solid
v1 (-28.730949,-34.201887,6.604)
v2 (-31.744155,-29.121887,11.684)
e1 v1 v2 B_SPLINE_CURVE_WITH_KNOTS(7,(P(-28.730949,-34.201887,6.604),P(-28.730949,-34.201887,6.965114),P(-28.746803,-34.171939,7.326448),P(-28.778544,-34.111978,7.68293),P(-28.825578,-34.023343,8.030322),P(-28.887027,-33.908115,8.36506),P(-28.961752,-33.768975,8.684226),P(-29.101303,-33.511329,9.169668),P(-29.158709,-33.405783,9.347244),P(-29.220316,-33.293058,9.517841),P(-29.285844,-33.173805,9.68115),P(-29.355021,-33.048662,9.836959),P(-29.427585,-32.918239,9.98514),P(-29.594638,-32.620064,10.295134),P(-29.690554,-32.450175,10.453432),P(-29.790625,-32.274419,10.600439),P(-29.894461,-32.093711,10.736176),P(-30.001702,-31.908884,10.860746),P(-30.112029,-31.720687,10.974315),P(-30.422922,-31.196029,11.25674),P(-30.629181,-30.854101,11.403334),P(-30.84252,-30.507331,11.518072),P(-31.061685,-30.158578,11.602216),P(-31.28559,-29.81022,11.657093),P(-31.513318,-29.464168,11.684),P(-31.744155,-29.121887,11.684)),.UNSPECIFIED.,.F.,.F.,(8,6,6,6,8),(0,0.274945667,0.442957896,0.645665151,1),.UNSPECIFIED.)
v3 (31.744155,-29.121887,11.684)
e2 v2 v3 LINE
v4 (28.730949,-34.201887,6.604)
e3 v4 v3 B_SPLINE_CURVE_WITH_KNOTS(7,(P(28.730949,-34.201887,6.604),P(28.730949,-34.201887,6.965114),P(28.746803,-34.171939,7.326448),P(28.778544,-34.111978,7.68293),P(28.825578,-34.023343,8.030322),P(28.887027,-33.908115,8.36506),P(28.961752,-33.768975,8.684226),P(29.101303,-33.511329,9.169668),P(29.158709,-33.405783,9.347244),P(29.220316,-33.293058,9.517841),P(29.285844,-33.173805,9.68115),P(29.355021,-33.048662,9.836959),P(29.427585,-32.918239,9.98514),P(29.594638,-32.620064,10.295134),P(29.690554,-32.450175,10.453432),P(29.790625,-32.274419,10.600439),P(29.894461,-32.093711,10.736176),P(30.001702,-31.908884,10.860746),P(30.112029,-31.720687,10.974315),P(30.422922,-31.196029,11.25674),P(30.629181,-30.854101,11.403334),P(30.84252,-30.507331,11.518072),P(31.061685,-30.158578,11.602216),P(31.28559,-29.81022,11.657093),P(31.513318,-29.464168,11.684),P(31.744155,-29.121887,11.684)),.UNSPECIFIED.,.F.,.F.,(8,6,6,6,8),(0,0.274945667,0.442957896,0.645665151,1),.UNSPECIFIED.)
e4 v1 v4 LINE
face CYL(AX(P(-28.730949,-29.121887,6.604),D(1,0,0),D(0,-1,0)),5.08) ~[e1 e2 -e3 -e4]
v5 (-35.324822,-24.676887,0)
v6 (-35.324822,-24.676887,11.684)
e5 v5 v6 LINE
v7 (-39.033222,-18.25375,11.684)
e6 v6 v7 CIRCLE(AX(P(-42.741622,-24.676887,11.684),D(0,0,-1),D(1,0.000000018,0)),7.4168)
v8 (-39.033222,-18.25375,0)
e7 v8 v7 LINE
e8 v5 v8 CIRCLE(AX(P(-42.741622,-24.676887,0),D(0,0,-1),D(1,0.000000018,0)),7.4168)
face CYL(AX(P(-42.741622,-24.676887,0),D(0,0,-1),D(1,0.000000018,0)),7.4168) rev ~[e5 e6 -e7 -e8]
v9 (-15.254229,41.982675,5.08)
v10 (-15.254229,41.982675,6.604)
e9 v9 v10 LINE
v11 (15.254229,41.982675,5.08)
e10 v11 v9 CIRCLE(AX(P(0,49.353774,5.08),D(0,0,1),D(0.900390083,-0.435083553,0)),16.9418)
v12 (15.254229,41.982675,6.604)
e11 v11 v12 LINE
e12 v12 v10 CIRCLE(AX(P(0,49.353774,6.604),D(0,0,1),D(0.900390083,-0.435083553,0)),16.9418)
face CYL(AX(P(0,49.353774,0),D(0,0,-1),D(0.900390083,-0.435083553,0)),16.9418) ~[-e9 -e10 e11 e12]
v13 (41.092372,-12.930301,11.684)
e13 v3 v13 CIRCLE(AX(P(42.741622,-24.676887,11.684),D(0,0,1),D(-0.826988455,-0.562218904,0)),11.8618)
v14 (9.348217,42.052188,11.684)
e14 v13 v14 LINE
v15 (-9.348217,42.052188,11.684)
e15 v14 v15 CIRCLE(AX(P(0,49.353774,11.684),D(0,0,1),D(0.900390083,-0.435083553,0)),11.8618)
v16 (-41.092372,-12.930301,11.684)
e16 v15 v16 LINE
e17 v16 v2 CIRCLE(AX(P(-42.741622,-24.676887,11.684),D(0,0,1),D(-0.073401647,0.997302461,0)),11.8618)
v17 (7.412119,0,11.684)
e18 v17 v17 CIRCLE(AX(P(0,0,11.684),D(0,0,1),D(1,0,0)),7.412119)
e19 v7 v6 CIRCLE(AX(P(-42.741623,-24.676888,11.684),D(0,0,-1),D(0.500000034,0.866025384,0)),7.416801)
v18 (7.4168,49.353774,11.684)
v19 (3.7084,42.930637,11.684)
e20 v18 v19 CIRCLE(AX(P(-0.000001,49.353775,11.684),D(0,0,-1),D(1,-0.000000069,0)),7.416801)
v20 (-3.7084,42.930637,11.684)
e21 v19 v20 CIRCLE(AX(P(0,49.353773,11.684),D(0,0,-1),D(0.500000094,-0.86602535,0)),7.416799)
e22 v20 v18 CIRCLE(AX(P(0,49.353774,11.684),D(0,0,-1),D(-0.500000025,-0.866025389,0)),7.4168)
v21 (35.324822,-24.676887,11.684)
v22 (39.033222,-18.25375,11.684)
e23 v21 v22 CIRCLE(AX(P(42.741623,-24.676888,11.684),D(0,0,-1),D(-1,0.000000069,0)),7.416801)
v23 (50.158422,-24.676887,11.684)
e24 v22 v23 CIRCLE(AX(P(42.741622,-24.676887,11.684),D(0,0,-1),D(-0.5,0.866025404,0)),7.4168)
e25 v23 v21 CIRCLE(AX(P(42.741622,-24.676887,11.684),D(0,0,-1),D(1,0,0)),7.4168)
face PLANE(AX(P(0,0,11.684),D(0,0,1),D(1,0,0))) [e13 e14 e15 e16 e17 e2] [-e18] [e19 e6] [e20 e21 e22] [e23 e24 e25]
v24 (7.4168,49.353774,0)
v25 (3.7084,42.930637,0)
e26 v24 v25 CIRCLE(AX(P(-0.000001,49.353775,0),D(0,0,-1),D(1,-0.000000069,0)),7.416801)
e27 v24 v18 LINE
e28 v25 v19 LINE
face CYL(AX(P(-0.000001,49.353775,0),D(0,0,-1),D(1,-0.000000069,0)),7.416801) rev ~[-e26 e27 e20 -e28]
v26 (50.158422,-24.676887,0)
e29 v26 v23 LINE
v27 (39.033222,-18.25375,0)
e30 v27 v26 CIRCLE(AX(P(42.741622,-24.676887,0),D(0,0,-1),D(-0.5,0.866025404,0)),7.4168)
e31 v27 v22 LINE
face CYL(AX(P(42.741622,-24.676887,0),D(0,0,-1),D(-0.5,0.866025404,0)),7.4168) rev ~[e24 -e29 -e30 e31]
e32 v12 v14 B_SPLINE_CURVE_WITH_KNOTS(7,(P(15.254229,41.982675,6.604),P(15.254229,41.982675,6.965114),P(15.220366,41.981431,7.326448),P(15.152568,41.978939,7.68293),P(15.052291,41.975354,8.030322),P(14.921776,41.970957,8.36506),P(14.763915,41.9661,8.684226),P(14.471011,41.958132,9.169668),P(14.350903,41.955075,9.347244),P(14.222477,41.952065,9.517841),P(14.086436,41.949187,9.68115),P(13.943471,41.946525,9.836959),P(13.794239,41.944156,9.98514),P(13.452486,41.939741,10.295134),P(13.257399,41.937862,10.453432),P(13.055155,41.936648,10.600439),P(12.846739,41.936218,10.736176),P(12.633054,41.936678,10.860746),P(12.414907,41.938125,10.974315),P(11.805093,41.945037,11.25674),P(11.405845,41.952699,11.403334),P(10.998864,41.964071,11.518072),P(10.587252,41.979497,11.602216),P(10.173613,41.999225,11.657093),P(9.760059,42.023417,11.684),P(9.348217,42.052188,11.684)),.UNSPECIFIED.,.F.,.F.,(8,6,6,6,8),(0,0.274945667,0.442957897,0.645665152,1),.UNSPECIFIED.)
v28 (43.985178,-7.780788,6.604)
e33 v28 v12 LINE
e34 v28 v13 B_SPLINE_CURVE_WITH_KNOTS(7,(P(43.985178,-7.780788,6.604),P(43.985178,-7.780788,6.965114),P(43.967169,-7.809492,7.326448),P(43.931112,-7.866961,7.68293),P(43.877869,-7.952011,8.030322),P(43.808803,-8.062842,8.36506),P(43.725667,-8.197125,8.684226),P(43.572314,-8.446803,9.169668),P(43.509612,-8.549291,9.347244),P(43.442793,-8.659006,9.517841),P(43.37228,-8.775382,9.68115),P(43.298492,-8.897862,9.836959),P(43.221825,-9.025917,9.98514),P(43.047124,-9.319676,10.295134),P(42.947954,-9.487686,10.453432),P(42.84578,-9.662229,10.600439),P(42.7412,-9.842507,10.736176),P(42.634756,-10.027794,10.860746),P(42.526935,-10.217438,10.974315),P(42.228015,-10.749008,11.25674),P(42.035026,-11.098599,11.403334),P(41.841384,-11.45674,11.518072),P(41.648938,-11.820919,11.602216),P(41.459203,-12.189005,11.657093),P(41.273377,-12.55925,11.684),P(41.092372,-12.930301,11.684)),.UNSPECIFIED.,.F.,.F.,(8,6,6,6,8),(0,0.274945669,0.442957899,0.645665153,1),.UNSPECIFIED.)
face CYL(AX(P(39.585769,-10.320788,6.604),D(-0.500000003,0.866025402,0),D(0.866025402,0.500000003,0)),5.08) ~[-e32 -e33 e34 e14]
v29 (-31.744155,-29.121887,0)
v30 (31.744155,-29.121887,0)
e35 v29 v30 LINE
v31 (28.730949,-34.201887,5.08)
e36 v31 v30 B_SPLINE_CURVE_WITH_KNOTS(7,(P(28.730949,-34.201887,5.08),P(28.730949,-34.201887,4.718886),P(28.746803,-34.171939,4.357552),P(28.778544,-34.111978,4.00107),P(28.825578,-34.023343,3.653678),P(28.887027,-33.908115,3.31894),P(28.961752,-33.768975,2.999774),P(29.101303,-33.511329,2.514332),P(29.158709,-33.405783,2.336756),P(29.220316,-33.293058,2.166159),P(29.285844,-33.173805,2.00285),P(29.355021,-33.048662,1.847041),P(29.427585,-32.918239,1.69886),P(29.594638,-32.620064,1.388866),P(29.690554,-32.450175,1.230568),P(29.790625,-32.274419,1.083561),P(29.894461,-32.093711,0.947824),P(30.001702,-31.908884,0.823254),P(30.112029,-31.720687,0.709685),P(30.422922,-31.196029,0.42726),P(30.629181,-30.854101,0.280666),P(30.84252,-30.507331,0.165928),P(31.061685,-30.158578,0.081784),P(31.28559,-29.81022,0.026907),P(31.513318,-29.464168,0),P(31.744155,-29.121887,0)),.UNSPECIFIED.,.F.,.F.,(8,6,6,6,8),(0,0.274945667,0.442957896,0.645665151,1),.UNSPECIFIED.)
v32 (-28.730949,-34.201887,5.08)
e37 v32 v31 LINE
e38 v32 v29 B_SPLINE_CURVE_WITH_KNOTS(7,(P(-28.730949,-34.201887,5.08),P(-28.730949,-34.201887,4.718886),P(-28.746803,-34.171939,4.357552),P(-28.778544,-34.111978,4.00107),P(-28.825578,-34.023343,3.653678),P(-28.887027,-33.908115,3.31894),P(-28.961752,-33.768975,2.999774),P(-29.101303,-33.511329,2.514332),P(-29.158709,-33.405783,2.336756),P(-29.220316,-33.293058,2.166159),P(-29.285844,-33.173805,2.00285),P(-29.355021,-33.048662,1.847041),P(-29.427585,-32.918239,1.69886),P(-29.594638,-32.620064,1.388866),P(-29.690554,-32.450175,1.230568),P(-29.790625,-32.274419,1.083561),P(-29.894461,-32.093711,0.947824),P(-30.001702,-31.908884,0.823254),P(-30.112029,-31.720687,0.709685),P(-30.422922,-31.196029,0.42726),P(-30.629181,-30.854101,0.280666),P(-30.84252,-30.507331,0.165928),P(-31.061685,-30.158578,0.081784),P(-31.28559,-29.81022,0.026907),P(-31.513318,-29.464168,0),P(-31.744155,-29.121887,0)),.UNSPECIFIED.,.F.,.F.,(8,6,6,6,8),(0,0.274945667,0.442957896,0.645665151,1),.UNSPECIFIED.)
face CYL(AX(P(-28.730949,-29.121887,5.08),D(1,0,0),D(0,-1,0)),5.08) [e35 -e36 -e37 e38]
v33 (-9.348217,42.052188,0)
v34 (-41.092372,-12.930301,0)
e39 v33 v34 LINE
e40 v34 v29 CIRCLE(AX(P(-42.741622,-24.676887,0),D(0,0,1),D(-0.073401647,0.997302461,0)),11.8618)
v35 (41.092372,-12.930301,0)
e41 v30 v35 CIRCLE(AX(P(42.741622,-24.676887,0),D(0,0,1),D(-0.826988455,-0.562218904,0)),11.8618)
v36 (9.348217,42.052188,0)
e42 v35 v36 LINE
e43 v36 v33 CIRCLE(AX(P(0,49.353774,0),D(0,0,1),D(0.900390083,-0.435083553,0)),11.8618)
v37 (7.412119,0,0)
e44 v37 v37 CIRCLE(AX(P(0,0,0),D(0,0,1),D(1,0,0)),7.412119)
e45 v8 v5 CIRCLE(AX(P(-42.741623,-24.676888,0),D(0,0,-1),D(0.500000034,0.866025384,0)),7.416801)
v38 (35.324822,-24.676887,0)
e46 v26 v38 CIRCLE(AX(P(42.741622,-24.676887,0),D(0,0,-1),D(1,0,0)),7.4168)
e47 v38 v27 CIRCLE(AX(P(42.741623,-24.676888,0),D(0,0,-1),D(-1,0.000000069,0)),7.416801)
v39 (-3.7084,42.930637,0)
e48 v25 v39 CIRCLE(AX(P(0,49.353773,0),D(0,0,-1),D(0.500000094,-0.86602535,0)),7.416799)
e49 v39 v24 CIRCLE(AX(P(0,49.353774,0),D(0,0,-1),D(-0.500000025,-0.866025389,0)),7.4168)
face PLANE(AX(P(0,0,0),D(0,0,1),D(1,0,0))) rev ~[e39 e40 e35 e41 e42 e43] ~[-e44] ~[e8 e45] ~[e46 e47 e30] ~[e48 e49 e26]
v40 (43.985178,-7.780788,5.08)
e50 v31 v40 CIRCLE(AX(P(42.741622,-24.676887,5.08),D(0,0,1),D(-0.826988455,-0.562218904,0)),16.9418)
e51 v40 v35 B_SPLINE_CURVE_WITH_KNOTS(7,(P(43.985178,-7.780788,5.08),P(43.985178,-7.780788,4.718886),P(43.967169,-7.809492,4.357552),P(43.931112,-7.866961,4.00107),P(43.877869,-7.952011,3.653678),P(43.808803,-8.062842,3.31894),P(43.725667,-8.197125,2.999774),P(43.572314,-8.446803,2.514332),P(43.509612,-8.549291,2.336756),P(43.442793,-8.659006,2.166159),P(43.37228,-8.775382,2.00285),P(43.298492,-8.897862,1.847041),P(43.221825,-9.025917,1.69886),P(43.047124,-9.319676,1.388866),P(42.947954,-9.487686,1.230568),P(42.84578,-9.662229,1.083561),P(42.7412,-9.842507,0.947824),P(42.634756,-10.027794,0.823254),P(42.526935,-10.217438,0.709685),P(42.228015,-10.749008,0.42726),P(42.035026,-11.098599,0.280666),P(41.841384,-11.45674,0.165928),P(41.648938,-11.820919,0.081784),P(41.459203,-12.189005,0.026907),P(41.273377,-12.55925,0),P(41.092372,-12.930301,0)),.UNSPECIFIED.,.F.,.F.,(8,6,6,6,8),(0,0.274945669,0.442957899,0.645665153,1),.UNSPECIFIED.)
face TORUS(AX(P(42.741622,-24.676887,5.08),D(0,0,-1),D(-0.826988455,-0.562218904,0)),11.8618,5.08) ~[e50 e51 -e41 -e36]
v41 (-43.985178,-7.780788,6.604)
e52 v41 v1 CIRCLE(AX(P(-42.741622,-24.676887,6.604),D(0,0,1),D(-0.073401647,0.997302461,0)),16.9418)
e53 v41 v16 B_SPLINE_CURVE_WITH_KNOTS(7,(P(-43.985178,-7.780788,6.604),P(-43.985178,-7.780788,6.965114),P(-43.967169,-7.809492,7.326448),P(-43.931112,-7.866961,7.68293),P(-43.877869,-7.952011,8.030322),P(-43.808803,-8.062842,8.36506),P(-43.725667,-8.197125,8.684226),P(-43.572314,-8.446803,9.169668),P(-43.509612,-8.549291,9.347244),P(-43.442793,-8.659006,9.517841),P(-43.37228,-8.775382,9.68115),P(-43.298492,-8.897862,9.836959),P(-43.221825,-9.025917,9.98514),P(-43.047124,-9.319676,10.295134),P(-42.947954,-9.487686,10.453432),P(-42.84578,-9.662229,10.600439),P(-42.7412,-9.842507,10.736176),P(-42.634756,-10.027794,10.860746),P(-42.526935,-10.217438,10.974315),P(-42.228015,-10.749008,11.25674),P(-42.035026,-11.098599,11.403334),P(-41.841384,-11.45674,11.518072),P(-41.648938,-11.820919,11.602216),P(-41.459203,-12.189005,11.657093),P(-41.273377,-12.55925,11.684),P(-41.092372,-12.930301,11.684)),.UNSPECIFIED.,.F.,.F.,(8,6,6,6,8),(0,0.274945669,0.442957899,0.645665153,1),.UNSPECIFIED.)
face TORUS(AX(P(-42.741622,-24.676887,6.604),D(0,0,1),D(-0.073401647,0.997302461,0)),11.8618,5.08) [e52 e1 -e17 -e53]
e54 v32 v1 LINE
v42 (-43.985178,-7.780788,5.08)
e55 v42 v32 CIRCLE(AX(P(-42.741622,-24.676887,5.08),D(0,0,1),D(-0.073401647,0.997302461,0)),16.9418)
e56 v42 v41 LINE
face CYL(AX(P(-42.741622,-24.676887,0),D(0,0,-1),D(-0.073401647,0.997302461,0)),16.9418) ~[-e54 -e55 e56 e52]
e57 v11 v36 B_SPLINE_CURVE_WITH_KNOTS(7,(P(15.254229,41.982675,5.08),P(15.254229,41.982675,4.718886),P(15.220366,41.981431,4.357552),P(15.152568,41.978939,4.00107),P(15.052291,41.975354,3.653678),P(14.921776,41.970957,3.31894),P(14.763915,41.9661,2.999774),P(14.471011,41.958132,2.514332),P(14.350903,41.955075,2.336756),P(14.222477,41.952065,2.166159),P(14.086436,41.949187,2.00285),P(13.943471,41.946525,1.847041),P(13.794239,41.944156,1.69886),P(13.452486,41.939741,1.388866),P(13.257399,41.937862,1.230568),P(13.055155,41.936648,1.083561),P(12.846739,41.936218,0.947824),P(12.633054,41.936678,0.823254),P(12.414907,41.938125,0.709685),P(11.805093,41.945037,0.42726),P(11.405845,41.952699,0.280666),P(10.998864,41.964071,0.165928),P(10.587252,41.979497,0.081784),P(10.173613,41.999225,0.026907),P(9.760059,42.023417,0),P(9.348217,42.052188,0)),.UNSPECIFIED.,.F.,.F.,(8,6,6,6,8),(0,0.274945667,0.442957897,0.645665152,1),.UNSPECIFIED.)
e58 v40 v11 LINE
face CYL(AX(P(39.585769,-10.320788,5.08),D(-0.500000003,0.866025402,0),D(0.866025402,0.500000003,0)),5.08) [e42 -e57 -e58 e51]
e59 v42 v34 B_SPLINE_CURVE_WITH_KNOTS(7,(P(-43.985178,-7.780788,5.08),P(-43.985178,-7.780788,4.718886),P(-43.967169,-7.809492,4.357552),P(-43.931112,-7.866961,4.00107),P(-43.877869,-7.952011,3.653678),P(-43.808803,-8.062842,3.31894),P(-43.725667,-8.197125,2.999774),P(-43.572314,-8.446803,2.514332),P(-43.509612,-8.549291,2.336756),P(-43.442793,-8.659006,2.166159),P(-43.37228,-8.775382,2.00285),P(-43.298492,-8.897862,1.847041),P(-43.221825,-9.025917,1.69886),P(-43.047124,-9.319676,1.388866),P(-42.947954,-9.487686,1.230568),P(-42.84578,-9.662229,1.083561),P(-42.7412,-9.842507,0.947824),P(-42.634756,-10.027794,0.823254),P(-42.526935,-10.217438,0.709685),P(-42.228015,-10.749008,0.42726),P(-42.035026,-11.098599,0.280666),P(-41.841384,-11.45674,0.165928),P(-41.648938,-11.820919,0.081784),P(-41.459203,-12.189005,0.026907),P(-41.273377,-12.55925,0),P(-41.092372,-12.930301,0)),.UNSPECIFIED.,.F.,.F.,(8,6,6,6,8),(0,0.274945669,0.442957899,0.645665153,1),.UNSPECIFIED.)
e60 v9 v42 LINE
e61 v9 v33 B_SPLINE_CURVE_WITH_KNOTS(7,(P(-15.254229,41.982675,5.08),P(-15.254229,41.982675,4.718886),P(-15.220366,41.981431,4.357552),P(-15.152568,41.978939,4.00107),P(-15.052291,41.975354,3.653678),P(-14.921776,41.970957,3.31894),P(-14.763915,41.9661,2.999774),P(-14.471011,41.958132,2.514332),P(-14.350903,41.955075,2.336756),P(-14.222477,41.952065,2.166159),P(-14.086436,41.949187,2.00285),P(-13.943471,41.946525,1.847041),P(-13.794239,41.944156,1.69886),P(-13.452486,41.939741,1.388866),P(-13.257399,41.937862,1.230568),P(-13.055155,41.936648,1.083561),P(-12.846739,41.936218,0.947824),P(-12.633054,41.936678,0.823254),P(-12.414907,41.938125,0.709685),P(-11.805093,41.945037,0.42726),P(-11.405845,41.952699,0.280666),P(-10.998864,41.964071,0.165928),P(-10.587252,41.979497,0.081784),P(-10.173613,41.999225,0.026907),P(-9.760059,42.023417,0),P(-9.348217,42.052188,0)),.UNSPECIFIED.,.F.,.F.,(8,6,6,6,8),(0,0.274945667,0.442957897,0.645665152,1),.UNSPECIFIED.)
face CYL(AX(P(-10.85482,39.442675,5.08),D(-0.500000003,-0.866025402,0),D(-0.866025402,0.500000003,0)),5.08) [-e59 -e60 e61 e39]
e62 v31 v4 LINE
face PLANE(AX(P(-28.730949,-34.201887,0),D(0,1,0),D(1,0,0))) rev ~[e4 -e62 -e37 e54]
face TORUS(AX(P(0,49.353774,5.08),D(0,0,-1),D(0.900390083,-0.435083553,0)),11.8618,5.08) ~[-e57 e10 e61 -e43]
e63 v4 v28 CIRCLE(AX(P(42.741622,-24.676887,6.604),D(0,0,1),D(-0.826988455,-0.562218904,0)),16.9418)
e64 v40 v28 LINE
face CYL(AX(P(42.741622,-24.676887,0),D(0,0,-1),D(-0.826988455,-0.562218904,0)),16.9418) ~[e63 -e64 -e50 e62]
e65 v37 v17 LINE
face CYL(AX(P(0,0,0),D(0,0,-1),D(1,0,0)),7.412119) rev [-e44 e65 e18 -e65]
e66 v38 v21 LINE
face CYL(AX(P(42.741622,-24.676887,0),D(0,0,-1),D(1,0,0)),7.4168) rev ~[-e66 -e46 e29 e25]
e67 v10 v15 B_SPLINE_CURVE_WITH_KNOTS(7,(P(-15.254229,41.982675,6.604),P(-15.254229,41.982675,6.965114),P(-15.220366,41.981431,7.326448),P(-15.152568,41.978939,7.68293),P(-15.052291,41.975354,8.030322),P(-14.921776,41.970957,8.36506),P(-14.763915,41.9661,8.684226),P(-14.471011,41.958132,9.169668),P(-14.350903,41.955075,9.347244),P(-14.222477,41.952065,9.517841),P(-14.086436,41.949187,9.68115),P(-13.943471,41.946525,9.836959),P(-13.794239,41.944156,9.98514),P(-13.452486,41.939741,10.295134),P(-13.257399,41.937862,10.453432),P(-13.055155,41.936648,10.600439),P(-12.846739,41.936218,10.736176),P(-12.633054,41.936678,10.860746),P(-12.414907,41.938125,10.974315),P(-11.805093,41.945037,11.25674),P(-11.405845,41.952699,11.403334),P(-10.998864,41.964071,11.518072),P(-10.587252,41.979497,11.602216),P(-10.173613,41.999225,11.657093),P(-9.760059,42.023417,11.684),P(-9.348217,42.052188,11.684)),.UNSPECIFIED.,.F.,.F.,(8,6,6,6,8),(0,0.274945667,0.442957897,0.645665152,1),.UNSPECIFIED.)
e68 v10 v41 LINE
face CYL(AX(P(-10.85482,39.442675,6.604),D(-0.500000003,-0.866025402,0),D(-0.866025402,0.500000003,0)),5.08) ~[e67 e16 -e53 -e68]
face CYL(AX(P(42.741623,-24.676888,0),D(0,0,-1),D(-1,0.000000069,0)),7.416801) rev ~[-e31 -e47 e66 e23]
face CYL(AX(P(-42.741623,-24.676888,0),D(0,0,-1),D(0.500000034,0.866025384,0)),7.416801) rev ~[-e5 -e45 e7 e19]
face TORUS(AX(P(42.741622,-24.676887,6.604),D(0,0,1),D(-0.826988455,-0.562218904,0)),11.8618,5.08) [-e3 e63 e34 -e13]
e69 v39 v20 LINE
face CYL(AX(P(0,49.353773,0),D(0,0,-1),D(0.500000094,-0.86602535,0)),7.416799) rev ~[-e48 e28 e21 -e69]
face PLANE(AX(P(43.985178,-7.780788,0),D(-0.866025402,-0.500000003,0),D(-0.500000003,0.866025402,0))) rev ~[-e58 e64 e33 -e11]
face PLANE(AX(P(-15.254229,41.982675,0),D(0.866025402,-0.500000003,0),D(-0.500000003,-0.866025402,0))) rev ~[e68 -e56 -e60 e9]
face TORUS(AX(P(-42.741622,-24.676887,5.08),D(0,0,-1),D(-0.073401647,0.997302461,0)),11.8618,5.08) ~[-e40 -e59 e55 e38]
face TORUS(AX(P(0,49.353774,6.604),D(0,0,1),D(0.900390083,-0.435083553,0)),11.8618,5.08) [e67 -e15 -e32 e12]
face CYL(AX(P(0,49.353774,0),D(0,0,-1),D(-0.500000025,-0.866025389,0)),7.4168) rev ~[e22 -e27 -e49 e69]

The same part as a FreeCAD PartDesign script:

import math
import FreeCAD as App
import Part
import Sketcher
Q = App.Units.Quantity


def edges_at(feature, points):
    """Names of the edges that pass closest to the given points."""
    edges = feature.Shape.Edges
    near = lambda p: min(range(len(edges)), key=lambda i: edges[i].distToShape(Part.Vertex(*p))[0])
    return sorted({f"Edge{near(p) + 1}" for p in points})

doc = App.newDocument("Part")
body = doc.addObject("PartDesign::Body", "Body")

sketch1 = doc.addObject("Sketcher::SketchObject", "Sketch")
body.addObject(sketch1)
sketch1.AttachmentSupport = (doc.XY_Plane, [""])
sketch1.MapMode = "FlatFace"
sketch1.addGeometry([
    Part.LineSegment(App.Vector(-15, 42, 0), App.Vector(-44, -8, 0)),
    Part.ArcOfCircle(Part.Circle(App.Vector(-43, -25, 0), App.Vector(0, 0, 1), 17), math.radians(94), math.radians(326)),
    Part.LineSegment(App.Vector(-29, -34, 0), App.Vector(29, -34, 0)),
    Part.ArcOfCircle(Part.Circle(App.Vector(43, -25, 0), App.Vector(0, 0, 1), 17), math.radians(-146), math.radians(86)),
    Part.LineSegment(App.Vector(44, -8, 0), App.Vector(15, 42, 0)),
    Part.ArcOfCircle(Part.Circle(App.Vector(0, 49, 0), App.Vector(0, 0, 1), 17), math.radians(-26), math.radians(206)),
    Part.ArcOfCircle(Part.Circle(App.Vector(-43, -25, 0), App.Vector(0, 0, 1), 7), math.radians(60), math.radians(360)),
    Part.ArcOfCircle(Part.Circle(App.Vector(-43, -25, 0), App.Vector(0, 0, 1), 7), math.radians(0), math.radians(60)),
    Part.Circle(App.Vector(0, 0, 0), App.Vector(0, 0, 1), 7),
    Part.ArcOfCircle(Part.Circle(App.Vector(43, -25, 0), App.Vector(0, 0, 1), 7), math.radians(180), math.radians(360)),
    Part.ArcOfCircle(Part.Circle(App.Vector(43, -25, 0), App.Vector(0, 0, 1), 7), math.radians(120), math.radians(180)),
    Part.ArcOfCircle(Part.Circle(App.Vector(43, -25, 0), App.Vector(0, 0, 1), 7), math.radians(0), math.radians(120)),
    Part.ArcOfCircle(Part.Circle(App.Vector(0, 49, 0), App.Vector(0, 0, 1), 7), math.radians(-60), math.radians(0)),
    Part.ArcOfCircle(Part.Circle(App.Vector(0, 49, 0), App.Vector(0, 0, 1), 7), math.radians(-120), math.radians(-60)),
    Part.ArcOfCircle(Part.Circle(App.Vector(0, 49, 0), App.Vector(0, 0, 1), 7), math.radians(0), math.radians(240)),
], False)
sketch1.addConstraint([
    Sketcher.Constraint("Coincident", 0, 2, 1, 1),
    Sketcher.Constraint("Coincident", 1, 2, 2, 1),
    Sketcher.Constraint("Coincident", 2, 2, 3, 1),
    Sketcher.Constraint("Coincident", 3, 2, 4, 1),
    Sketcher.Constraint("Coincident", 4, 2, 5, 1),
    Sketcher.Constraint("Coincident", 5, 2, 0, 1),
    Sketcher.Constraint("Tangent", 6, 1, 7, 2),
    Sketcher.Constraint("Coincident", 7, 1, 6, 2),
    Sketcher.Constraint("Tangent", 9, 1, 10, 2),
    Sketcher.Constraint("Tangent", 10, 1, 11, 2),
    Sketcher.Constraint("Tangent", 11, 1, 9, 2),
    Sketcher.Constraint("Tangent", 12, 1, 13, 2),
    Sketcher.Constraint("Tangent", 13, 1, 14, 2),
    Sketcher.Constraint("Tangent", 14, 1, 12, 2),
    Sketcher.Constraint("Horizontal", 2),
    Sketcher.Constraint("Coincident", 8, 3, -1, 1),
    Sketcher.Constraint("Coincident", 6, 3, 1, 3),
    Sketcher.Constraint("Coincident", 9, 3, 3, 3),
    Sketcher.Constraint("Coincident", 12, 3, 5, 3),
    Sketcher.Constraint("Equal", 1, 3),
    Sketcher.Constraint("Equal", 3, 5),
    Sketcher.Constraint("Equal", 7, 9),
    Sketcher.Constraint("Equal", 11, 12),
    Sketcher.Constraint("Symmetric", 1, 3, 3, 3, -2),
    Sketcher.Constraint("Symmetric", 4, 2, 5, 2, -2),
    Sketcher.Constraint("Horizontal", 0, 2, 3, 2),
    Sketcher.Constraint("Horizontal", 11, 3, 7, 1),
    Sketcher.Constraint("Horizontal", 7, 1, 9, 1),
    Sketcher.Constraint("Horizontal", 6, 1, 10, 1),
    Sketcher.Constraint("Horizontal", 9, 1, 11, 1),
    Sketcher.Constraint("Horizontal", 12, 1, 13, 1),
    Sketcher.Constraint("Horizontal", 13, 3, 14, 1),
    Sketcher.Constraint("Angle", 0, Q("-120 deg")),
    Sketcher.Constraint("Radius", 1, Q("0.667 in")),
    Sketcher.Constraint("Radius", 6, Q("0.292 in")),
    Sketcher.Constraint("DistanceX", -1, 1, 12, 1, Q("0.146 in")),
    Sketcher.Constraint("DistanceY", 1, 2, 6, 3, Q("0.375 in")),
    Sketcher.Constraint("DistanceX", 1, 3, 6, 1, Q("0.146 in")),
    Sketcher.Constraint("Diameter", 8, Q("14.824238 mm")),
    Sketcher.Constraint("DistanceX", 0, 2, -1, 1, Q("1.7316999 in")),
    Sketcher.Constraint("DistanceY", 1, 3, 0, 2, Q("16.896099 mm")),
    Sketcher.Constraint("DistanceY", 4, 2, 5, 3, Q("7.371099 mm")),
    Sketcher.Constraint("DistanceY", 0, 2, -1, 1, Q("7.780788 mm")),
])
pad1 = doc.addObject("PartDesign::Pad", "Pad")
body.addObject(pad1)
pad1.Profile = sketch1
pad1.Length = Q("0.46 in")
doc.recompute()

fillet = doc.addObject("PartDesign::Fillet", "Fillet")
body.addObject(fillet)
fillet.Base = (pad1, edges_at(pad1, [
    (0, -34.202, 0),
    (0, -34.202, 11.684),
    (57.414, -33.148, 11.684),
    (-57.414, -33.148, 11.684),
    (-29.62, 17.101, 11.684),
    (0, 66.296, 11.684),
    (29.62, 17.101, 0),
    (29.62, 17.101, 11.684),
    (57.414, -33.148, 0),
    (-57.414, -33.148, 0),
    (0, 66.296, 0),
    (-29.62, 17.101, 0),
]))
fillet.Radius = Q("0.2 in")

doc.recompute()
